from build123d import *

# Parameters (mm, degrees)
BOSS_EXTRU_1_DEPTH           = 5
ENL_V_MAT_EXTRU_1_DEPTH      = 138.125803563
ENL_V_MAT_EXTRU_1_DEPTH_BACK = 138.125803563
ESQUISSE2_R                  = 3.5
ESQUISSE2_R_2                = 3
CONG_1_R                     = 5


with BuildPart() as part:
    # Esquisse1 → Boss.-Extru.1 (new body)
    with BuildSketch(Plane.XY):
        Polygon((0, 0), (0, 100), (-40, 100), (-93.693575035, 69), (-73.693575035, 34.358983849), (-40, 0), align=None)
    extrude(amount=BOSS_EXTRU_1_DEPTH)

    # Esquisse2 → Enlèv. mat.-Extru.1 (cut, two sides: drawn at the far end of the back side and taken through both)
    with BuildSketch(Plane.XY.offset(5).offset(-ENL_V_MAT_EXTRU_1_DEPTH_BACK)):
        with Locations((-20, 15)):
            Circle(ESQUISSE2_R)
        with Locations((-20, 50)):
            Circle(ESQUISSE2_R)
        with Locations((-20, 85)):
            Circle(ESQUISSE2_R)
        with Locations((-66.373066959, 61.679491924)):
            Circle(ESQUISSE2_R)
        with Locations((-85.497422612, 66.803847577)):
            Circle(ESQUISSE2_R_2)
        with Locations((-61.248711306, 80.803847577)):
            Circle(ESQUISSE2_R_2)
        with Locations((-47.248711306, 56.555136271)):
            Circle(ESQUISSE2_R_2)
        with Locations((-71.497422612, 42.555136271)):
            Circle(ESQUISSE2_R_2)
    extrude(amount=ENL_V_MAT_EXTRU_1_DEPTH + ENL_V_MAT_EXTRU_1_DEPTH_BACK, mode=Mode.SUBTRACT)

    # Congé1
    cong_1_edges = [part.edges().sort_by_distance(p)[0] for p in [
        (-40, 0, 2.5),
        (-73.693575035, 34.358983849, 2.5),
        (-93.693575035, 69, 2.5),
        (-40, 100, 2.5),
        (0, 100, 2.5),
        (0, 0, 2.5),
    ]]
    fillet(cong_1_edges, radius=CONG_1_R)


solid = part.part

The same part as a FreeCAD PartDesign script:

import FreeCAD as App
import Part
import Sketcher
Q = App.Units.Quantity


def edges_at(feature, points):
    """Names of the edges that pass closest to the given points."""
    edges = feature.Shape.Edges
    near = lambda p: min(range(len(edges)), key=lambda i: edges[i].distToShape(Part.Vertex(*p))[0])
    return sorted({f"Edge{near(p) + 1}" for p in points})


def add_polygon(sketch, points):
    """Adds a closed chain of lines whose ends are joined by coincident constraints."""
    first, n = sketch.GeometryCount, len(points)
    for a, b in zip(points, points[1:] + points[:1]):
        sketch.addGeometry(Part.LineSegment(App.Vector(*a, 0), App.Vector(*b, 0)), False)
    for i in range(n):
        sketch.addConstraint(Sketcher.Constraint("Coincident", first + i, 2, first + (i + 1) % n, 1))

doc = App.newDocument("Part")
body = doc.addObject("PartDesign::Body", "Body")

sketch1 = body.newObject("Sketcher::SketchObject", "Sketch")
sketch1.AttachmentSupport = (doc.getObject("XY_Plane"), [""])
sketch1.MapMode = "FlatFace"
add_polygon(sketch1, [(0, 0), (0, 100), (-40, 100), (-93.693575, 69), (-73.693575, 34.358984), (-40, 0)])
sketch1.addConstraint(Sketcher.Constraint("Vertical", 0))
sketch1.addConstraint(Sketcher.Constraint("Horizontal", 1))
sketch1.addConstraint(Sketcher.Constraint("Horizontal", 5))
sketch1.addConstraint(Sketcher.Constraint("Coincident", 5, 2, -1, 1))
sketch1.addConstraint(Sketcher.Constraint("Perpendicular", 2, 3))
sketch1.addConstraint(Sketcher.Constraint("Vertical", 1, 2, 4, 2))
sketch1.addConstraint(Sketcher.Constraint("DistanceX", 1, 2, 1, 1, Q("40 mm")))
sketch1.addConstraint(Sketcher.Constraint("DistanceY", 0, 1, 0, 2, Q("100 mm")))
sketch1.addConstraint(Sketcher.Constraint("Angle", 2, Q("-150 deg")))
sketch1.addConstraint(Sketcher.Constraint("Distance", 2, Q("62 mm")))
sketch1.addConstraint(Sketcher.Constraint("Distance", 3, Q("40 mm")))
pad1 = body.newObject("PartDesign::Pad", "Pad")
pad1.Profile = sketch1
pad1.Length = 5

sketch2 = body.newObject("Sketcher::SketchObject", "Sketch001")
sketch2.AttachmentSupport = (doc.getObject("XY_Plane"), [""])
sketch2.MapMode = "FlatFace"
sketch2.AttachmentOffset = App.Placement(App.Vector(0, 0, 5), App.Rotation())
sketch2.addGeometry(Part.Circle(App.Vector(-20, 15, 0), App.Vector(0, 0, 1), 3.5), False)
sketch2.addGeometry(Part.Circle(App.Vector(-20, 50, 0), App.Vector(0, 0, 1), 3.5), False)
sketch2.addGeometry(Part.Circle(App.Vector(-20, 85, 0), App.Vector(0, 0, 1), 3.5), False)
sketch2.addGeometry(Part.Circle(App.Vector(-66.373067, 61.679492, 0), App.Vector(0, 0, 1), 3.5), False)
sketch2.addGeometry(Part.Circle(App.Vector(-85.497423, 66.803848, 0), App.Vector(0, 0, 1), 3), False)
sketch2.addGeometry(Part.Circle(App.Vector(-61.248711, 80.803848, 0), App.Vector(0, 0, 1), 3), False)
sketch2.addGeometry(Part.Circle(App.Vector(-47.248711, 56.555136, 0), App.Vector(0, 0, 1), 3), False)
sketch2.addGeometry(Part.Circle(App.Vector(-71.497423, 42.555136, 0), App.Vector(0, 0, 1), 3), False)
sketch2.addConstraint(Sketcher.Constraint("Equal", 0, 1))
sketch2.addConstraint(Sketcher.Constraint("Equal", 1, 2))
sketch2.addConstraint(Sketcher.Constraint("Equal", 2, 3))
sketch2.addConstraint(Sketcher.Constraint("Equal", 4, 5))
sketch2.addConstraint(Sketcher.Constraint("Equal", 5, 6))
sketch2.addConstraint(Sketcher.Constraint("Equal", 6, 7))
sketch2.addConstraint(Sketcher.Constraint("Vertical", 0, 3, 1, 3))
sketch2.addConstraint(Sketcher.Constraint("Vertical", 1, 3, 2, 3))
sketch2.addConstraint(Sketcher.Constraint("Diameter", 0, Q("7 mm")))
sketch2.addConstraint(Sketcher.Constraint("Diameter", 4, Q("6 mm")))
sketch2.addConstraint(Sketcher.Constraint("DistanceX", 0, 3, -1, 1, Q("20 mm")))
sketch2.addConstraint(Sketcher.Constraint("DistanceY", -1, 1, 0, 3, Q("15 mm")))
sketch2.addConstraint(Sketcher.Constraint("DistanceY", -1, 1, 1, 3, Q("50 mm")))
sketch2.addConstraint(Sketcher.Constraint("DistanceY", -1, 1, 2, 3, Q("85 mm")))
sketch2.addConstraint(Sketcher.Constraint("DistanceY", 4, 3, 5, 3, Q("14 mm")))
sketch2.addConstraint(Sketcher.Constraint("DistanceX", 5, 3, 6, 3, Q("14 mm")))
sketch2.addConstraint(Sketcher.Constraint("DistanceX", 4, 3, 7, 3, Q("14 mm")))
sketch2.addConstraint(Sketcher.Constraint("DistanceY", 7, 3, 6, 3, Q("14 mm")))
sketch2.addConstraint(Sketcher.Constraint("DistanceY", -1, 1, 3, 3, Q("61.679492 mm")))
sketch2.addConstraint(Sketcher.Constraint("DistanceX", 5, 3, -1, 1, Q("61.248711 mm")))
sketch2.addConstraint(Sketcher.Constraint("DistanceX", 4, 3, 5, 3, Q("24.248711 mm")))
sketch2.addConstraint(Sketcher.Constraint("DistanceY", 6, 3, 5, 3, Q("24.248711 mm")))
sketch2.addConstraint(Sketcher.Constraint("DistanceX", 3, 3, -1, 1, Q("66.373067 mm")))
sketch2.addConstraint(Sketcher.Constraint("DistanceY", -1, 1, 4, 3, Q("66.803848 mm")))
pocket1 = body.newObject("PartDesign::Pocket", "Pocket")
pocket1.Profile = sketch2
pocket1.Type = "ThroughAll"
pocket1.Midplane = True
doc.recompute()

fillet = body.newObject("PartDesign::Fillet", "Fillet")
fillet.Base = (pocket1, edges_at(pocket1, [
    (-40, 0, 2.5),
    (-73.694, 34.359, 2.5),
    (-93.694, 69, 2.5),
    (-40, 100, 2.5),
    (0, 100, 2.5),
    (0, 0, 2.5),
]))
fillet.Radius = 5

doc.recompute()
